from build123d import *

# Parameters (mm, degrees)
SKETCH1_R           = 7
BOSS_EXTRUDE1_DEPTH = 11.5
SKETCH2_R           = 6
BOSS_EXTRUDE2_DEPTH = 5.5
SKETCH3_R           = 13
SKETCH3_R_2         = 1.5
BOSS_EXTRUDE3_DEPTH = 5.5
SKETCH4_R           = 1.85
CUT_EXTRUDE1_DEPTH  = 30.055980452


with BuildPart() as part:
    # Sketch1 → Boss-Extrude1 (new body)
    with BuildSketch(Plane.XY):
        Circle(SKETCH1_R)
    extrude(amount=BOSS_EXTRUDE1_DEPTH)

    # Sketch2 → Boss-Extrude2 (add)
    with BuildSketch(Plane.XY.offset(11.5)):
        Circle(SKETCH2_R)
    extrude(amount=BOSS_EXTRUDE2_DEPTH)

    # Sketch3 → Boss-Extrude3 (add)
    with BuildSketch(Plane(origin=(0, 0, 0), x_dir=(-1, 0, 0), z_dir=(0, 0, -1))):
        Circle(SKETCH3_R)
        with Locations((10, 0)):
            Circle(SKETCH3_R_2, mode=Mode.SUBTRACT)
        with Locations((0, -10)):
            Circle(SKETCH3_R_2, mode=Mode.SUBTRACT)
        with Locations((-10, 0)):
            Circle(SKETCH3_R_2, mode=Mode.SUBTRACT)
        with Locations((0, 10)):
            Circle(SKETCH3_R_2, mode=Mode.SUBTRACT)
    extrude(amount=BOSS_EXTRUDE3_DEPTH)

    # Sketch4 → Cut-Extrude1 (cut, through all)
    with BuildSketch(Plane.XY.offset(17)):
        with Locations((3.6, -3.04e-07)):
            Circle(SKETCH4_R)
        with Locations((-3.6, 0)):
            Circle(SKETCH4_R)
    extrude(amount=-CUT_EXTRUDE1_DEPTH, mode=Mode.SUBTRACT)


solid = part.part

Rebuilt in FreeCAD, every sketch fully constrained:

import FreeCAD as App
import Part
import Sketcher
Q = App.Units.Quantity

doc = App.newDocument("Part")
body = doc.addObject("PartDesign::Body", "Body")

# Sketch on XY plane
sketch1 = body.newObject("Sketcher::SketchObject", "Sketch")
sketch1.AttachmentSupport = (doc.getObject("XY_Plane"), [""])
sketch1.MapMode = "FlatFace"
sketch1.addGeometry(Part.Circle(App.Vector(0, 0, 0), App.Vector(0, 0, 1), 7), False)
sketch1.addConstraint([
    Sketcher.Constraint("Coincident", 0, 3, -1, 1),
    Sketcher.Constraint("Diameter", 0, Q("14 mm")),
])
pad1 = body.newObject("PartDesign::Pad", "Pad")
pad1.Profile = sketch1
pad1.Length = 11.5

# Sketch on XY plane
sketch2 = body.newObject("Sketcher::SketchObject", "Sketch001")
sketch2.AttachmentSupport = (doc.getObject("XY_Plane"), [""])
sketch2.MapMode = "FlatFace"
sketch2.AttachmentOffset = App.Placement(App.Vector(0, 0, 11.5), App.Rotation())
sketch2.addGeometry(Part.Circle(App.Vector(0, 0, 0), App.Vector(0, 0, 1), 6), False)
sketch2.addConstraint([
    Sketcher.Constraint("Coincident", 0, 3, -1, 1),
    Sketcher.Constraint("Diameter", 0, Q("12 mm")),
])
pad2 = body.newObject("PartDesign::Pad", "Pad001")
pad2.Profile = sketch2
pad2.Length = 5.5

# Sketch on XY plane
sketch3 = body.newObject("Sketcher::SketchObject", "Sketch002")
sketch3.AttachmentSupport = (doc.getObject("XY_Plane"), [""])
sketch3.MapMode = "FlatFace"
sketch3.addGeometry([
    Part.Circle(App.Vector(0, 0, 0), App.Vector(0, 0, 1), 13),  # 0
    Part.Circle(App.Vector(0, -10, 0), App.Vector(0, 0, 1), 1.5),  # 1
    Part.Circle(App.Vector(10, 0, 0), App.Vector(0, 0, 1), 1.5),  # 2
    Part.Circle(App.Vector(-10, 0, 0), App.Vector(0, 0, 1), 1.5),  # 3
    Part.Circle(App.Vector(0, 10, 0), App.Vector(0, 0, 1), 1.5),  # 4
], False)
sketch3.addConstraint([
    Sketcher.Constraint("Coincident", 0, 3, -1, 1),
    Sketcher.Constraint("Equal", 1, 2),
    Sketcher.Constraint("Equal", 2, 3),
    Sketcher.Constraint("Equal", 3, 4),
    Sketcher.Constraint("Symmetric", 2, 3, 3, 3, -1, 1),
    Sketcher.Constraint("Symmetric", 1, 3, 4, 3, -1, 1),
    Sketcher.Constraint("PointOnObject", 1, 3, -2),
    Sketcher.Constraint("PointOnObject", 2, 3, -1),
    Sketcher.Constraint("Diameter", 0, Q("26 mm")),
    Sketcher.Constraint("Diameter", 1, Q("3 mm")),
    Sketcher.Constraint("DistanceY", 1, 3, -1, 1, Q("10 mm")),
    Sketcher.Constraint("DistanceX", -1, 1, 2, 3, Q("10 mm")),
])
pad3 = body.newObject("PartDesign::Pad", "Pad002")
pad3.Profile = sketch3
pad3.Length = 5.5
pad3.Reversed = True

# Sketch on XY plane
sketch4 = body.newObject("Sketcher::SketchObject", "Sketch003")
sketch4.AttachmentSupport = (doc.getObject("XY_Plane"), [""])
sketch4.MapMode = "FlatFace"
sketch4.AttachmentOffset = App.Placement(App.Vector(0, 0, 17), App.Rotation())
sketch4.addGeometry([
    Part.Circle(App.Vector(3.6, 0, 0), App.Vector(0, 0, 1), 1.85),
    Part.Circle(App.Vector(-3.6, 0, 0), App.Vector(0, 0, 1), 1.85),
], False)
sketch4.addConstraint([
    Sketcher.Constraint("Equal", 0, 1),
    Sketcher.Constraint("Symmetric", 0, 3, 1, 3, -1, 1),
    Sketcher.Constraint("PointOnObject", 0, 3, -1),
    Sketcher.Constraint("Diameter", 0, Q("3.7 mm")),
    Sketcher.Constraint("DistanceX", -1, 1, 0, 3, Q("3.6 mm")),
])
pocket1 = body.newObject("PartDesign::Pocket", "Pocket")
pocket1.Profile = sketch4
pocket1.Type = "ThroughAll"

doc.recompute()
